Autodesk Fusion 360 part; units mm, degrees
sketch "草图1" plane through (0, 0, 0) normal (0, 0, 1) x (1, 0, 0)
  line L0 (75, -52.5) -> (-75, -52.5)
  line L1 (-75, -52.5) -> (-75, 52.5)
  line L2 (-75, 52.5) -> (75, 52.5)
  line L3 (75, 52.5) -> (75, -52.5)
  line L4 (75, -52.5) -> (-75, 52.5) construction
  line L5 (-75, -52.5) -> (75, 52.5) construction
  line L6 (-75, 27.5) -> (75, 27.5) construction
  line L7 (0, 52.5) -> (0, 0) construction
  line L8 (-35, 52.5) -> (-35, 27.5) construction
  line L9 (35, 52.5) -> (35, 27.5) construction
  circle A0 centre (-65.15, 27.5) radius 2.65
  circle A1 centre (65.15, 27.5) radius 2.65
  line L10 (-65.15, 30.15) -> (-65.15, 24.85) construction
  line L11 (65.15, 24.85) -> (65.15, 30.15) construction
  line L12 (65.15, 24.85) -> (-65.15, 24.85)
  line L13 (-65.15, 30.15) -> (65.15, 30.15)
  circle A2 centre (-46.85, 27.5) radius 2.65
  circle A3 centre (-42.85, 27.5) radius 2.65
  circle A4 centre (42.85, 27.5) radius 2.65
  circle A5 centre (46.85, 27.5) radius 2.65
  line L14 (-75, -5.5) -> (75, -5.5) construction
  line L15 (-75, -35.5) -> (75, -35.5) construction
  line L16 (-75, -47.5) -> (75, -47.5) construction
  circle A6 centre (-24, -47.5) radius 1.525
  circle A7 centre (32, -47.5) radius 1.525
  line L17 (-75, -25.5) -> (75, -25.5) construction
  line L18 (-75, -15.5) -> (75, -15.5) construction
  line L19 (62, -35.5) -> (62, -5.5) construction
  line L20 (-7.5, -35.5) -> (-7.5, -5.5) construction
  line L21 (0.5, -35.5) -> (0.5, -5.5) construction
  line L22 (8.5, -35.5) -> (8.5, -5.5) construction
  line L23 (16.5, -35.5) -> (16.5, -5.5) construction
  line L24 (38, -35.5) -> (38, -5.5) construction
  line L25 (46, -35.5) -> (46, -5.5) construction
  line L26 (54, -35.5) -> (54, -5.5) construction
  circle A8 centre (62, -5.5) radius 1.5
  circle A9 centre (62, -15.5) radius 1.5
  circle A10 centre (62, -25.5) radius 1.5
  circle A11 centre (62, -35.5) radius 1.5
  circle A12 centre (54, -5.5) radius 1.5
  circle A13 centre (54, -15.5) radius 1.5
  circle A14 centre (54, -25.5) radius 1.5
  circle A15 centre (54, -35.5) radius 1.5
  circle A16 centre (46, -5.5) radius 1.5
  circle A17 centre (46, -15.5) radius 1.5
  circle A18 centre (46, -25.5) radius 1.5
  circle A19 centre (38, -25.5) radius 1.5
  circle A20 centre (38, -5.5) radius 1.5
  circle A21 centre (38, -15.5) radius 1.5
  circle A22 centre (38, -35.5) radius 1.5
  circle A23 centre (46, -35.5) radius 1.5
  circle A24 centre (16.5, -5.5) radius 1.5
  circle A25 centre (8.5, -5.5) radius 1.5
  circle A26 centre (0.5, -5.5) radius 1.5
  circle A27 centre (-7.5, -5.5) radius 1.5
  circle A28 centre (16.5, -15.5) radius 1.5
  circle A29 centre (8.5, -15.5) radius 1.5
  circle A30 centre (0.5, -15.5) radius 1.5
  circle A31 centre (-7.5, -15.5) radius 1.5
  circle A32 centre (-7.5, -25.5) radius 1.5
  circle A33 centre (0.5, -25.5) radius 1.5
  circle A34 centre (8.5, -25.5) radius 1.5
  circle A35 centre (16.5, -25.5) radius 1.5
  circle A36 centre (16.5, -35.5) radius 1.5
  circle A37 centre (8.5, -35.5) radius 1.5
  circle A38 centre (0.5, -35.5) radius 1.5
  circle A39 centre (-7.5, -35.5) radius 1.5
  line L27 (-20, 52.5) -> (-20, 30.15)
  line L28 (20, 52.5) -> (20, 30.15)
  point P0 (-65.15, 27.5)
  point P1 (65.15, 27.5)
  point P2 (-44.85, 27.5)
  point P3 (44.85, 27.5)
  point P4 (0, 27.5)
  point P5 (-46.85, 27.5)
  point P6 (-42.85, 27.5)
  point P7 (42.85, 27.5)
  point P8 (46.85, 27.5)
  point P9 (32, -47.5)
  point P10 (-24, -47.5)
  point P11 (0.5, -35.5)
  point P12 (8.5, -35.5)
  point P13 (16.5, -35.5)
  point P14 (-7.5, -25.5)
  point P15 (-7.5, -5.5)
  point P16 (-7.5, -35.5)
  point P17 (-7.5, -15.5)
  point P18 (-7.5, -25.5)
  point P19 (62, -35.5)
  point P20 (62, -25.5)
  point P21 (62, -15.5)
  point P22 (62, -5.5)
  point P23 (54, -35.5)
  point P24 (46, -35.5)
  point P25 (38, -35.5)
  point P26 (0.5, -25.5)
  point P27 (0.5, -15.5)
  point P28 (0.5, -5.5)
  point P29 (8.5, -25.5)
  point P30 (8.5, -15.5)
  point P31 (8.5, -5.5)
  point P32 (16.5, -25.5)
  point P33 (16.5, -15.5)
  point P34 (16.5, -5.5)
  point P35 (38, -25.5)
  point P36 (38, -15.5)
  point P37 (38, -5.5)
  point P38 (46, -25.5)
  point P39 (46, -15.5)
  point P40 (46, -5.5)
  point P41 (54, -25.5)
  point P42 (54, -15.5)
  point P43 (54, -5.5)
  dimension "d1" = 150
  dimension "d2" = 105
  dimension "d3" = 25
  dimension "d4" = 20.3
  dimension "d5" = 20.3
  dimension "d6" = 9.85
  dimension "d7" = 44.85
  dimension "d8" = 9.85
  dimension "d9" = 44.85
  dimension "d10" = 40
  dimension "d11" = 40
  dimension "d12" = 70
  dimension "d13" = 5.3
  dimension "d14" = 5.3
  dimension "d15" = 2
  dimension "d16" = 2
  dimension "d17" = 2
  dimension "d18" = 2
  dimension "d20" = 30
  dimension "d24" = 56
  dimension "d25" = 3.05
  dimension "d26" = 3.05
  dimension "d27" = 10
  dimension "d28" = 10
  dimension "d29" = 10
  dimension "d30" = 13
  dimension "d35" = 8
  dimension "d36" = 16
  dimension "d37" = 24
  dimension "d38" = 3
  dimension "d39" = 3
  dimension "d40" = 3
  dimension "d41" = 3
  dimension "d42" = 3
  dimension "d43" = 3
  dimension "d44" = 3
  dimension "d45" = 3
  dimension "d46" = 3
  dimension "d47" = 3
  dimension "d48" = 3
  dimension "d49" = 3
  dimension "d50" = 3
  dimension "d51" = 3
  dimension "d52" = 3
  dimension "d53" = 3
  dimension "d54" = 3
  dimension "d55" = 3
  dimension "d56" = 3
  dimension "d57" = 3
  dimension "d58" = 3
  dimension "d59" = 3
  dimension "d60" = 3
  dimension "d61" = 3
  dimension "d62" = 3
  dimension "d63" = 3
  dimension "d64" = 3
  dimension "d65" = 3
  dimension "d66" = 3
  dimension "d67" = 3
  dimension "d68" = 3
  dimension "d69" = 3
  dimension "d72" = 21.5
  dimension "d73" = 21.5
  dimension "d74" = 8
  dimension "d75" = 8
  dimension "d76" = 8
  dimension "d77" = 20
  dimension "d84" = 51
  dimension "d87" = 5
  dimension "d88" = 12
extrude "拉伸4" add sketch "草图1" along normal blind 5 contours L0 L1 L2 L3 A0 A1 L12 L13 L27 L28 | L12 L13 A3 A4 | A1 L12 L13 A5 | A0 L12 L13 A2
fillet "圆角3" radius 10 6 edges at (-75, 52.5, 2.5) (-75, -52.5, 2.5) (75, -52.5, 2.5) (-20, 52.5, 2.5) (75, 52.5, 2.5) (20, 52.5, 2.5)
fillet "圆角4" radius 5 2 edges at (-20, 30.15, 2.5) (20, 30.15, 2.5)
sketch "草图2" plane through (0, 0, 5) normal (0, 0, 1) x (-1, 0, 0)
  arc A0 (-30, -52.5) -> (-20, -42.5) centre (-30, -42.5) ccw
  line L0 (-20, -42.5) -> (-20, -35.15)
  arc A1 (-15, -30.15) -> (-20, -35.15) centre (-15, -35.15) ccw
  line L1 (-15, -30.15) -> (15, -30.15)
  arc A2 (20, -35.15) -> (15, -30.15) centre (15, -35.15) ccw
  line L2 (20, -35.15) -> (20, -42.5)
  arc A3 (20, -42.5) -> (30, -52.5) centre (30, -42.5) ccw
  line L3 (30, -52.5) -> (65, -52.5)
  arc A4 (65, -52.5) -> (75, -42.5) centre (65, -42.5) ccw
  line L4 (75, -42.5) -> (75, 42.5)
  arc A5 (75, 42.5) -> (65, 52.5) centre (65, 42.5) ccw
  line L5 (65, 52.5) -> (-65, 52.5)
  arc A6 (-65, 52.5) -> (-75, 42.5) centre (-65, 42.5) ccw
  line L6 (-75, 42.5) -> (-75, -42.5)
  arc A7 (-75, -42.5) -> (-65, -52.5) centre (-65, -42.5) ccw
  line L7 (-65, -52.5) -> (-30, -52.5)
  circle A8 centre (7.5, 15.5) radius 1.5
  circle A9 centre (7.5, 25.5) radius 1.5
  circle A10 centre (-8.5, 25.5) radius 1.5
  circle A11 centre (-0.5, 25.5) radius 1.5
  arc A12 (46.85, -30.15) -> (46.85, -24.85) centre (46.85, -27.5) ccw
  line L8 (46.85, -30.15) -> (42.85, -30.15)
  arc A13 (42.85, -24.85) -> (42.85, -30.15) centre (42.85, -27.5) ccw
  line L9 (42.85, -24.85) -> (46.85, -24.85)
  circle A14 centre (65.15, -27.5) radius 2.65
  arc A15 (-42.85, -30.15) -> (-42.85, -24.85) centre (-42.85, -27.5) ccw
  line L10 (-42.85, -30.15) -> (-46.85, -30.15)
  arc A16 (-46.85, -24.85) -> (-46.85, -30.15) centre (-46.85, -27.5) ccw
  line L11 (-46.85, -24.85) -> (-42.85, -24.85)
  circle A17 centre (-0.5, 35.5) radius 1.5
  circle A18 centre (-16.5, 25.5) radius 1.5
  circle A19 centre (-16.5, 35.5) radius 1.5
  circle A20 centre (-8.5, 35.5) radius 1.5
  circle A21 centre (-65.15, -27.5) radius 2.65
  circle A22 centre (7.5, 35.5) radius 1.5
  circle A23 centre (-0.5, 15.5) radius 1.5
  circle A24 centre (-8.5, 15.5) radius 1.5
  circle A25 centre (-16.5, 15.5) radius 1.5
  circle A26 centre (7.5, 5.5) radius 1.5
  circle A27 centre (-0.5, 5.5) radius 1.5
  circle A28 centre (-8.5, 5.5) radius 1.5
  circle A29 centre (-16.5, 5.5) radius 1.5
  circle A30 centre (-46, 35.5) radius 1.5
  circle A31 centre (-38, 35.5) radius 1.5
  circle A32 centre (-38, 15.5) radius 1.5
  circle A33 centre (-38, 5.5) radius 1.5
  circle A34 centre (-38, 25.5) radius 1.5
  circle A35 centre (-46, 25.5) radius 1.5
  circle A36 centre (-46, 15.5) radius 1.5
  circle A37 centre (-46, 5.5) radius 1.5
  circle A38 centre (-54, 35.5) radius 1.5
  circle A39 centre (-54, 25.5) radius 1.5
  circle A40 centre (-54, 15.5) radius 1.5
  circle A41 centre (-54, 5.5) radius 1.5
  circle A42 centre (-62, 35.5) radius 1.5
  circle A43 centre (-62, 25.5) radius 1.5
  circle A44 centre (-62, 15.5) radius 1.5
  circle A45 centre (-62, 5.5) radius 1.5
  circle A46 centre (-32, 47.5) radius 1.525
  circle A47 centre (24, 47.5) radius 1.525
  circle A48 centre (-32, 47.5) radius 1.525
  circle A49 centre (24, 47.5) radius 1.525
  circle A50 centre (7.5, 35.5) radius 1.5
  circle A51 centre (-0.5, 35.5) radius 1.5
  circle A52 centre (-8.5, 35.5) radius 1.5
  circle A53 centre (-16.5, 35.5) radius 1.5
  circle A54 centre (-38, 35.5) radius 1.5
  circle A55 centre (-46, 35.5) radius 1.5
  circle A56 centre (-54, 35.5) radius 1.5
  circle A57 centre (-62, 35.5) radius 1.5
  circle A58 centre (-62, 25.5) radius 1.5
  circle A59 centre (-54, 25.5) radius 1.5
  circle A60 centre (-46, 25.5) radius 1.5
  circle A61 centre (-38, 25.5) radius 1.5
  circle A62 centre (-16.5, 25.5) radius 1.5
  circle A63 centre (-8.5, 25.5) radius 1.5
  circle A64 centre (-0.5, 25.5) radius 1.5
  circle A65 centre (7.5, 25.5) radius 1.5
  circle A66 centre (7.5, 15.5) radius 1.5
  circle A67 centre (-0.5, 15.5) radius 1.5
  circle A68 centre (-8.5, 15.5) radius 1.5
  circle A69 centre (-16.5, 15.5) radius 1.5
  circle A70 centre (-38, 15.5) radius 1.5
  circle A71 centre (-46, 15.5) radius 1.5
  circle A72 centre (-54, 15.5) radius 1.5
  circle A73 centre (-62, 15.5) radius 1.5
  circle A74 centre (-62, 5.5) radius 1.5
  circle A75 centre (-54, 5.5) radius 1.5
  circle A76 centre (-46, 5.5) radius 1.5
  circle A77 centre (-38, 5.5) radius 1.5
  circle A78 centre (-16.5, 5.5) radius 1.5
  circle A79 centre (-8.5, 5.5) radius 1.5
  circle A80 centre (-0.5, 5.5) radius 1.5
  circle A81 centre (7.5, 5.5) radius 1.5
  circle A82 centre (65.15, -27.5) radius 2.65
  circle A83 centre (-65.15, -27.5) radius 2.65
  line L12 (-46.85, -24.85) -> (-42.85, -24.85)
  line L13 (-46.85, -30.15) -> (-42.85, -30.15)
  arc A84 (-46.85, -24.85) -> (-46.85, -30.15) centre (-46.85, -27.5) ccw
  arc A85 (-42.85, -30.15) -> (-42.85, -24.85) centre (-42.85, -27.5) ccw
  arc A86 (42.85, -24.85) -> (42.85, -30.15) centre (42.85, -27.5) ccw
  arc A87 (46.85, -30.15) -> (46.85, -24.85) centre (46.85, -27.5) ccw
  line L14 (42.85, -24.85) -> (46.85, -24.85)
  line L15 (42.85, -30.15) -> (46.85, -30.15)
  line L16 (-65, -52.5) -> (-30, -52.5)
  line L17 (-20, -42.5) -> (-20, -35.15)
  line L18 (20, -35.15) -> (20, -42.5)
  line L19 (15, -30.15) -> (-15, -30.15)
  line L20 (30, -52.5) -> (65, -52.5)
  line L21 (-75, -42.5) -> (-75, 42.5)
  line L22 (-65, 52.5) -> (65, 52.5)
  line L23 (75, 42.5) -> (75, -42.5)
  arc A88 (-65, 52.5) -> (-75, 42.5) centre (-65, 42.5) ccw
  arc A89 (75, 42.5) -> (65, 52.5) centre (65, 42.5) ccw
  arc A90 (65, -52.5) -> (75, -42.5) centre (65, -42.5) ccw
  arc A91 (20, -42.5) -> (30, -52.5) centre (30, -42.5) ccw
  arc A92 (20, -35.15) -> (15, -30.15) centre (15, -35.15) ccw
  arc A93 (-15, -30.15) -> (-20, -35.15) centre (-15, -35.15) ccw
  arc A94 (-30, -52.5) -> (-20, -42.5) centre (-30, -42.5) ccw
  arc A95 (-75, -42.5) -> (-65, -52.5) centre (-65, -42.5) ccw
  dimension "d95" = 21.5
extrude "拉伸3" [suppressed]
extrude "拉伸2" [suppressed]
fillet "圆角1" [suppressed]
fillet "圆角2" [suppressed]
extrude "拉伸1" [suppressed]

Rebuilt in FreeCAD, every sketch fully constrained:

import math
import FreeCAD as App
import Part
import Sketcher
Q = App.Units.Quantity


def edges_at(feature, points):
    """Names of the edges that pass closest to the given points."""
    edges = feature.Shape.Edges
    near = lambda p: min(range(len(edges)), key=lambda i: edges[i].distToShape(Part.Vertex(*p))[0])
    return sorted({f"Edge{near(p) + 1}" for p in points})

doc = App.newDocument("Part")
body = doc.addObject("PartDesign::Body", "Body")

sketch1 = doc.addObject("Sketcher::SketchObject", "Sketch")
body.addObject(sketch1)
sketch1.AttachmentSupport = (doc.XY_Plane, [""])
sketch1.MapMode = "FlatFace"
sketch1.addGeometry([
    Part.LineSegment(App.Vector(-75, -52.5, 0), App.Vector(75, -52.5, 0)),
    Part.LineSegment(App.Vector(75, -52.5, 0), App.Vector(75, 52.5, 0)),
    Part.LineSegment(App.Vector(75, 52.5, 0), App.Vector(20, 52.5, 0)),
    Part.LineSegment(App.Vector(20, 52.5, 0), App.Vector(20, 30.1, 0)),
    Part.LineSegment(App.Vector(20, 30.1, 0), App.Vector(-20, 30.1, 0)),
    Part.LineSegment(App.Vector(-20, 30.1, 0), App.Vector(-20, 52.5, 0)),
    Part.LineSegment(App.Vector(-20, 52.5, 0), App.Vector(-75, 52.5, 0)),
    Part.LineSegment(App.Vector(-75, 52.5, 0), App.Vector(-75, -52.5, 0)),
    Part.LineSegment(App.Vector(-46.9, 30.1, 0), App.Vector(-42.9, 30.1, 0)),
    Part.ArcOfCircle(Part.Circle(App.Vector(-42.9, 27.5, 0), App.Vector(0, 0, 1), 2.6), math.radians(-90), math.radians(90)),
    Part.LineSegment(App.Vector(-42.9, 24.9, 0), App.Vector(-46.9, 24.9, 0)),
    Part.ArcOfCircle(Part.Circle(App.Vector(-46.9, 27.5, 0), App.Vector(0, 0, 1), 2.6), math.radians(90), math.radians(270)),
    Part.Circle(App.Vector(-65.2, 27.5, 0), App.Vector(0, 0, 1), 2.6),
    Part.LineSegment(App.Vector(46.9, 24.9, 0), App.Vector(42.9, 24.9, 0)),
    Part.ArcOfCircle(Part.Circle(App.Vector(42.9, 27.5, 0), App.Vector(0, 0, 1), 2.6), math.radians(90), math.radians(270)),
    Part.LineSegment(App.Vector(42.9, 30.1, 0), App.Vector(46.9, 30.1, 0)),
    Part.ArcOfCircle(Part.Circle(App.Vector(46.9, 27.5, 0), App.Vector(0, 0, 1), 2.6), math.radians(-90), math.radians(90)),
    Part.Circle(App.Vector(65.2, 27.5, 0), App.Vector(0, 0, 1), 2.6),
    Part.Circle(App.Vector(-24, -47.5, 0), App.Vector(0, 0, 1), 1.5),
    Part.Circle(App.Vector(-7.5, -35.5, 0), App.Vector(0, 0, 1), 1.5),
    Part.Circle(App.Vector(-7.5, -25.5, 0), App.Vector(0, 0, 1), 1.5),
    Part.Circle(App.Vector(-7.5, -15.5, 0), App.Vector(0, 0, 1), 1.5),
    Part.Circle(App.Vector(-7.5, -5.5, 0), App.Vector(0, 0, 1), 1.5),
    Part.Circle(App.Vector(32, -47.5, 0), App.Vector(0, 0, 1), 1.5),
    Part.Circle(App.Vector(0.5, -35.5, 0), App.Vector(0, 0, 1), 1.5),
    Part.Circle(App.Vector(8.5, -35.5, 0), App.Vector(0, 0, 1), 1.5),
    Part.Circle(App.Vector(16.5, -35.5, 0), App.Vector(0, 0, 1), 1.5),
    Part.Circle(App.Vector(38, -35.5, 0), App.Vector(0, 0, 1), 1.5),
    Part.Circle(App.Vector(46, -35.5, 0), App.Vector(0, 0, 1), 1.5),
    Part.Circle(App.Vector(54, -35.5, 0), App.Vector(0, 0, 1), 1.5),
    Part.Circle(App.Vector(62, -35.5, 0), App.Vector(0, 0, 1), 1.5),
    Part.Circle(App.Vector(0.5, -25.5, 0), App.Vector(0, 0, 1), 1.5),
    Part.Circle(App.Vector(8.5, -25.5, 0), App.Vector(0, 0, 1), 1.5),
    Part.Circle(App.Vector(16.5, -25.5, 0), App.Vector(0, 0, 1), 1.5),
    Part.Circle(App.Vector(0.5, -15.5, 0), App.Vector(0, 0, 1), 1.5),
    Part.Circle(App.Vector(8.5, -15.5, 0), App.Vector(0, 0, 1), 1.5),
    Part.Circle(App.Vector(16.5, -15.5, 0), App.Vector(0, 0, 1), 1.5),
    Part.Circle(App.Vector(0.5, -5.5, 0), App.Vector(0, 0, 1), 1.5),
    Part.Circle(App.Vector(8.5, -5.5, 0), App.Vector(0, 0, 1), 1.5),
    Part.Circle(App.Vector(16.5, -5.5, 0), App.Vector(0, 0, 1), 1.5),
    Part.Circle(App.Vector(38, -25.5, 0), App.Vector(0, 0, 1), 1.5),
    Part.Circle(App.Vector(46, -25.5, 0), App.Vector(0, 0, 1), 1.5),
    Part.Circle(App.Vector(54, -25.5, 0), App.Vector(0, 0, 1), 1.5),
    Part.Circle(App.Vector(38, -15.5, 0), App.Vector(0, 0, 1), 1.5),
    Part.Circle(App.Vector(46, -15.5, 0), App.Vector(0, 0, 1), 1.5),
    Part.Circle(App.Vector(54, -15.5, 0), App.Vector(0, 0, 1), 1.5),
    Part.Circle(App.Vector(62, -25.5, 0), App.Vector(0, 0, 1), 1.5),
    Part.Circle(App.Vector(62, -15.5, 0), App.Vector(0, 0, 1), 1.5),
    Part.Circle(App.Vector(38, -5.5, 0), App.Vector(0, 0, 1), 1.5),
    Part.Circle(App.Vector(46, -5.5, 0), App.Vector(0, 0, 1), 1.5),
    Part.Circle(App.Vector(54, -5.5, 0), App.Vector(0, 0, 1), 1.5),
    Part.Circle(App.Vector(62, -5.5, 0), App.Vector(0, 0, 1), 1.5),
], False)
sketch1.addConstraint([
    Sketcher.Constraint("Coincident", 0, 2, 1, 1),
    Sketcher.Constraint("Coincident", 1, 2, 2, 1),
    Sketcher.Constraint("Coincident", 2, 2, 3, 1),
    Sketcher.Constraint("Coincident", 3, 2, 4, 1),
    Sketcher.Constraint("Coincident", 4, 2, 5, 1),
    Sketcher.Constraint("Coincident", 5, 2, 6, 1),
    Sketcher.Constraint("Coincident", 6, 2, 7, 1),
    Sketcher.Constraint("Coincident", 7, 2, 0, 1),
    Sketcher.Constraint("Tangent", 8, 2, 9, 2),
    Sketcher.Constraint("Tangent", 9, 1, 10, 1),
    Sketcher.Constraint("Tangent", 10, 2, 11, 2),
    Sketcher.Constraint("Tangent", 11, 1, 8, 1),
    Sketcher.Constraint("Tangent", 13, 2, 14, 2),
    Sketcher.Constraint("Tangent", 14, 1, 15, 1),
    Sketcher.Constraint("Tangent", 15, 2, 16, 2),
    Sketcher.Constraint("Tangent", 16, 1, 13, 1),
    Sketcher.Constraint("Horizontal", 0),
    Sketcher.Constraint("Vertical", 1),
    Sketcher.Constraint("Horizontal", 2),
    Sketcher.Constraint("Vertical", 3),
    Sketcher.Constraint("Horizontal", 4),
    Sketcher.Constraint("Vertical", 5),
    Sketcher.Constraint("Horizontal", 6),
    Sketcher.Constraint("Vertical", 7),
    Sketcher.Constraint("Horizontal", 8),
    Sketcher.Constraint("Horizontal", 10),
    Sketcher.Constraint("Horizontal", 13),
    Sketcher.Constraint("Horizontal", 15),
    Sketcher.Constraint("Equal", 11, 12),
    Sketcher.Constraint("Equal", 12, 14),
    Sketcher.Constraint("Equal", 16, 17),
    Sketcher.Constraint("Equal", 19, 20),
    Sketcher.Constraint("Equal", 20, 21),
    Sketcher.Constraint("Equal", 21, 22),
    Sketcher.Constraint("Equal", 18, 23),
    Sketcher.Constraint("Equal", 22, 24),
    Sketcher.Constraint("Equal", 24, 25),
    Sketcher.Constraint("Equal", 25, 26),
    Sketcher.Constraint("Equal", 26, 27),
    Sketcher.Constraint("Equal", 27, 28),
    Sketcher.Constraint("Equal", 28, 29),
    Sketcher.Constraint("Equal", 29, 30),
    Sketcher.Constraint("Equal", 30, 31),
    Sketcher.Constraint("Equal", 31, 32),
    Sketcher.Constraint("Equal", 32, 33),
    Sketcher.Constraint("Equal", 33, 34),
    Sketcher.Constraint("Equal", 34, 35),
    Sketcher.Constraint("Equal", 35, 36),
    Sketcher.Constraint("Equal", 36, 37),
    Sketcher.Constraint("Equal", 37, 38),
    Sketcher.Constraint("Equal", 38, 39),
    Sketcher.Constraint("Equal", 39, 40),
    Sketcher.Constraint("Equal", 40, 41),
    Sketcher.Constraint("Equal", 41, 42),
    Sketcher.Constraint("Equal", 42, 43),
    Sketcher.Constraint("Equal", 43, 44),
    Sketcher.Constraint("Equal", 44, 45),
    Sketcher.Constraint("Equal", 45, 46),
    Sketcher.Constraint("Equal", 46, 47),
    Sketcher.Constraint("Equal", 47, 48),
    Sketcher.Constraint("Equal", 48, 49),
    Sketcher.Constraint("Equal", 49, 50),
    Sketcher.Constraint("Equal", 50, 51),
    Sketcher.Constraint("Symmetric", 0, 2, 6, 2, -1, 1),
    Sketcher.Constraint("Symmetric", 9, 3, 14, 3, -2),
    Sketcher.Constraint("Symmetric", 12, 3, 17, 3, -2),
    Sketcher.Constraint("Symmetric", 2, 2, 5, 2, -2),
    Sketcher.Constraint("Horizontal", 11, 3, 12, 3),
    Sketcher.Constraint("Horizontal", 18, 3, 23, 3),
    Sketcher.Constraint("Horizontal", 19, 3, 24, 3),
    Sketcher.Constraint("Horizontal", 24, 3, 25, 3),
    Sketcher.Constraint("Horizontal", 25, 3, 26, 3),
    Sketcher.Constraint("Horizontal", 26, 3, 27, 3),
    Sketcher.Constraint("Horizontal", 27, 3, 28, 3),
    Sketcher.Constraint("Horizontal", 28, 3, 29, 3),
    Sketcher.Constraint("Horizontal", 29, 3, 30, 3),
    Sketcher.Constraint("Horizontal", 20, 3, 31, 3),
    Sketcher.Constraint("Horizontal", 31, 3, 32, 3),
    Sketcher.Constraint("Horizontal", 32, 3, 33, 3),
    Sketcher.Constraint("Horizontal", 21, 3, 34, 3),
    Sketcher.Constraint("Horizontal", 34, 3, 35, 3),
    Sketcher.Constraint("Horizontal", 35, 3, 36, 3),
    Sketcher.Constraint("Horizontal", 22, 3, 37, 3),
    Sketcher.Constraint("Horizontal", 37, 3, 38, 3),
    Sketcher.Constraint("Horizontal", 38, 3, 39, 3),
    Sketcher.Constraint("Horizontal", 33, 3, 40, 3),
    Sketcher.Constraint("Horizontal", 40, 3, 41, 3),
    Sketcher.Constraint("Horizontal", 41, 3, 42, 3),
    Sketcher.Constraint("Horizontal", 36, 3, 43, 3),
    Sketcher.Constraint("Horizontal", 43, 3, 44, 3),
    Sketcher.Constraint("Horizontal", 44, 3, 45, 3),
    Sketcher.Constraint("Horizontal", 42, 3, 46, 3),
    Sketcher.Constraint("Horizontal", 45, 3, 47, 3),
    Sketcher.Constraint("Horizontal", 39, 3, 48, 3),
    Sketcher.Constraint("Horizontal", 48, 3, 49, 3),
    Sketcher.Constraint("Horizontal", 49, 3, 50, 3),
    Sketcher.Constraint("Horizontal", 50, 3, 51, 3),
    Sketcher.Constraint("Horizontal", 4, 2, 8, 2),
    Sketcher.Constraint("Vertical", 19, 3, 20, 3),
    Sketcher.Constraint("Vertical", 20, 3, 21, 3),
    Sketcher.Constraint("Vertical", 21, 3, 22, 3),
    Sketcher.Constraint("Vertical", 24, 3, 31, 3),
    Sketcher.Constraint("Vertical", 25, 3, 32, 3),
    Sketcher.Constraint("Vertical", 26, 3, 33, 3),
    Sketcher.Constraint("Vertical", 31, 3, 34, 3),
    Sketcher.Constraint("Vertical", 32, 3, 35, 3),
    Sketcher.Constraint("Vertical", 33, 3, 36, 3),
    Sketcher.Constraint("Vertical", 34, 3, 37, 3),
    Sketcher.Constraint("Vertical", 35, 3, 38, 3),
    Sketcher.Constraint("Vertical", 36, 3, 39, 3),
    Sketcher.Constraint("Vertical", 27, 3, 40, 3),
    Sketcher.Constraint("Vertical", 28, 3, 41, 3),
    Sketcher.Constraint("Vertical", 29, 3, 42, 3),
    Sketcher.Constraint("Vertical", 40, 3, 43, 3),
    Sketcher.Constraint("Vertical", 41, 3, 44, 3),
    Sketcher.Constraint("Vertical", 42, 3, 45, 3),
    Sketcher.Constraint("Vertical", 30, 3, 46, 3),
    Sketcher.Constraint("Vertical", 46, 3, 47, 3),
    Sketcher.Constraint("Vertical", 43, 3, 48, 3),
    Sketcher.Constraint("Vertical", 44, 3, 49, 3),
    Sketcher.Constraint("Vertical", 45, 3, 50, 3),
    Sketcher.Constraint("Vertical", 47, 3, 51, 3),
    Sketcher.Constraint("Equal", 10, 13),
    Sketcher.Constraint("Diameter", 19, Q("3 mm")),
    Sketcher.Constraint("Diameter", 12, Q("5.3 mm")),
    Sketcher.Constraint("Diameter", 18, Q("3.05 mm")),
    Sketcher.Constraint("DistanceX", 0, 1, 0, 2, Q("150 mm")),
    Sketcher.Constraint("DistanceX", 4, 2, 4, 1, Q("40 mm")),
    Sketcher.Constraint("DistanceY", 1, 1, 1, 2, Q("105 mm")),
    Sketcher.Constraint("DistanceX", 18, 3, -1, 1, Q("24 mm")),
    Sketcher.Constraint("DistanceY", 18, 3, 19, 3, Q("12 mm")),
    Sketcher.Constraint("DistanceY", 19, 3, 20, 3, Q("10 mm")),
    Sketcher.Constraint("DistanceY", 20, 3, 21, 3, Q("10 mm")),
    Sketcher.Constraint("DistanceY", 21, 3, 22, 3, Q("10 mm")),
    Sketcher.Constraint("DistanceX", 18, 3, 23, 3, Q("56 mm")),
    Sketcher.Constraint("DistanceX", 19, 3, 24, 3, Q("8 mm")),
    Sketcher.Constraint("DistanceX", 24, 3, 25, 3, Q("8 mm")),
    Sketcher.Constraint("DistanceX", 25, 3, 26, 3, Q("8 mm")),
    Sketcher.Constraint("DistanceX", 27, 3, 28, 3, Q("8 mm")),
    Sketcher.Constraint("DistanceX", 28, 3, 29, 3, Q("8 mm")),
    Sketcher.Constraint("DistanceX", 29, 3, 30, 3, Q("8 mm")),
    Sketcher.Constraint("DistanceX", 23, 3, 30, 3, Q("30 mm")),
    Sketcher.Constraint("DistanceY", 17, 3, 1, 2, Q("25 mm")),
    Sketcher.Constraint("DistanceY", 7, 2, 18, 3, Q("5 mm")),
    Sketcher.Constraint("DistanceX", 26, 3, 27, 3, Q("21.5 mm")),
    Sketcher.Constraint("DistanceX", 8, 1, 8, 2, Q("4 mm")),
    Sketcher.Constraint("DistanceX", 17, 3, 1, 2, Q("9.85 mm")),
    Sketcher.Constraint("DistanceX", 12, 3, 14, 3, Q("108 mm")),
])
pad1 = doc.addObject("PartDesign::Pad", "Pad")
body.addObject(pad1)
pad1.Profile = sketch1
pad1.Length = 5
doc.recompute()

fillet = doc.addObject("PartDesign::Fillet", "Fillet")
body.addObject(fillet)
fillet.Base = (pad1, edges_at(pad1, [
    (-75, 52.5, 2.5),
    (-75, -52.5, 2.5),
    (75, -52.5, 2.5),
    (-20, 52.5, 2.5),
    (75, 52.5, 2.5),
    (20, 52.5, 2.5),
]))
fillet.Radius = 10
doc.recompute()

fillet2 = doc.addObject("PartDesign::Fillet", "Fillet001")
body.addObject(fillet2)
fillet2.Base = (fillet, edges_at(fillet, [(-20, 30.15, 2.5), (20, 30.15, 2.5)]))
fillet2.Radius = 5

doc.recompute()
